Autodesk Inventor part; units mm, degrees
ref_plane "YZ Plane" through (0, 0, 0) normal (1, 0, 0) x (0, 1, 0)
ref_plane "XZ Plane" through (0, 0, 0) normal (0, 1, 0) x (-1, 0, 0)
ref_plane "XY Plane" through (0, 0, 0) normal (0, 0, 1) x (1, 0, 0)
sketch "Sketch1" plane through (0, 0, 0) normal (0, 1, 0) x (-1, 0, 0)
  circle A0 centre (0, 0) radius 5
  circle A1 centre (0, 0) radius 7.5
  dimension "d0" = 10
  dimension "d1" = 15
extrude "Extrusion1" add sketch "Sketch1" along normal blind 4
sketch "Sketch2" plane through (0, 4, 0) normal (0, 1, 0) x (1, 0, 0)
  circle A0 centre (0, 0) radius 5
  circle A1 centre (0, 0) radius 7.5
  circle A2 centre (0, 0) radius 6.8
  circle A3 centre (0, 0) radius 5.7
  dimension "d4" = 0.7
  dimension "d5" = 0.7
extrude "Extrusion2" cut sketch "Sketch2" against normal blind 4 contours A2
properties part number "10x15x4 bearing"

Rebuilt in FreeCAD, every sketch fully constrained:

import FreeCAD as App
import Part
import Sketcher

V = App.Vector

doc = App.newDocument("Part")
body = doc.addObject("PartDesign::Body", "Body")
body.AllowCompound = True

sketch1 = body.newObject("Sketcher::SketchObject", "Sketch")
sketch1.AttachmentSupport = (doc.getObject("XZ_Plane"), [""])
sketch1.MapMode = "FlatFace"
sketch1.addGeometry([
    Part.Circle(V(0, 0, 0), V(0, 0, 1), 7.5),
    Part.Circle(V(0, 0, 0), V(0, 0, 1), 5),
], False)
sketch1.addConstraint([
    Sketcher.Constraint("Coincident", 0, 3, -1, 1),
    Sketcher.Constraint("Coincident", 1, 3, -1, 1),
    Sketcher.Constraint("Diameter", 0, 15.0),
    Sketcher.Constraint("Diameter", 1, 10.0),
])
pad1 = body.newObject("PartDesign::Pad", "Pad")
pad1.Profile = sketch1
pad1.Length = 4
pad1.Reversed = True

sketch2 = body.newObject("Sketcher::SketchObject", "Sketch001")
sketch2.AttachmentSupport = (doc.getObject("XZ_Plane"), [""])
sketch2.MapMode = "FlatFace"
sketch2.AttachmentOffset = App.Placement(V(0, 0, -4), App.Rotation())
sketch2.addGeometry([
    Part.Circle(V(0, 0, 0), V(0, 0, 1), 6.8),
    Part.Circle(V(0, 0, 0), V(0, 0, 1), 5.7),
], False)
sketch2.addConstraint([
    Sketcher.Constraint("Coincident", 0, 3, -1, 1),
    Sketcher.Constraint("Coincident", 1, 3, -1, 1),
    Sketcher.Constraint("Diameter", 0, 13.6),
    Sketcher.Constraint("Diameter", 1, 11.4),
])
pocket1 = body.newObject("PartDesign::Pocket", "Pocket")
pocket1.Profile = sketch2
pocket1.Length = 4
pocket1.Reversed = True

doc.recompute()
